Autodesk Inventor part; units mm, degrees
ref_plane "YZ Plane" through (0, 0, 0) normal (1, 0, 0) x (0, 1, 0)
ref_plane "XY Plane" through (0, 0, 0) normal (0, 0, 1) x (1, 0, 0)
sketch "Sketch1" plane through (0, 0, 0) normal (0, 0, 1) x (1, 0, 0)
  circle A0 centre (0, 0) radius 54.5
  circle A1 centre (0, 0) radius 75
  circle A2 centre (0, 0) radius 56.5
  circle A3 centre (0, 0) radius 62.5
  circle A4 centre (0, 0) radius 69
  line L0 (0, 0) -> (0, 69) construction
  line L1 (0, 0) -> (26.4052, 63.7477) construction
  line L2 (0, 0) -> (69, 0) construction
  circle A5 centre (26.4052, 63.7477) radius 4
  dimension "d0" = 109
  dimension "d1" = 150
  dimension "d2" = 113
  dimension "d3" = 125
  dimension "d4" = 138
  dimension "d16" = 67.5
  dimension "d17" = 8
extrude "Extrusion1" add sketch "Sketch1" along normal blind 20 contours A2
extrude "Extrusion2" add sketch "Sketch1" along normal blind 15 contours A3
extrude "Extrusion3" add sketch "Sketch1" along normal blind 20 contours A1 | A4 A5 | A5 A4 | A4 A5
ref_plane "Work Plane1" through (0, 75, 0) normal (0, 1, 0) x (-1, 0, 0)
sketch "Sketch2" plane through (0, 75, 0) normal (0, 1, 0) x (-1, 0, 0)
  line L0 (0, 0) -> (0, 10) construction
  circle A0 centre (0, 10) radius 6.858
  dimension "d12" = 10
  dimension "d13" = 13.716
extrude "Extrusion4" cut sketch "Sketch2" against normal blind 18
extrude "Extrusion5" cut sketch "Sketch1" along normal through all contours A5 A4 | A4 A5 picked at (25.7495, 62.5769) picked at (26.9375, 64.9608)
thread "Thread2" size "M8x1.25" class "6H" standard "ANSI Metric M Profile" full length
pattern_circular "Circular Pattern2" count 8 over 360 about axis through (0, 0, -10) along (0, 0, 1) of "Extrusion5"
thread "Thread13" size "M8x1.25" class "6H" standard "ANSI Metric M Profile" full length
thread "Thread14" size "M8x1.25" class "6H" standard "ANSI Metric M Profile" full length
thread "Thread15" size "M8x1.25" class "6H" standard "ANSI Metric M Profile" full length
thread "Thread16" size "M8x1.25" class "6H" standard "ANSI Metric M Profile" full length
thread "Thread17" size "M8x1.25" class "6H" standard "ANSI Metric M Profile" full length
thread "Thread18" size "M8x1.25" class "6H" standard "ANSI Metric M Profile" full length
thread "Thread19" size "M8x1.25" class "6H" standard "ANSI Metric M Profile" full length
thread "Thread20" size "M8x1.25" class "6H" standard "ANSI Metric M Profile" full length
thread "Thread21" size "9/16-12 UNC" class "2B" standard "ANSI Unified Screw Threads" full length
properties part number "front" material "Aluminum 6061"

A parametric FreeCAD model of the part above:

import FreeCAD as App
import Part
import Sketcher

V = App.Vector
Q = App.Units.Quantity

doc = App.newDocument("Part")
body = doc.addObject("PartDesign::Body", "Body")

# Sketch on XY plane
sketch1 = doc.addObject("Sketcher::SketchObject", "Sketch")
body.addObject(sketch1)
sketch1.AttachmentSupport = (doc.XY_Plane, [""])
sketch1.MapMode = "FlatFace"
sketch1.addGeometry(Part.Circle(V(0, 0, 0), V(0, 0, 1), 56), False)
sketch1.addGeometry(Part.Circle(V(0, 0, 0), V(0, 0, 1), 54), False)
sketch1.addConstraint(Sketcher.Constraint("Coincident", 0, 3, -1, 1))
sketch1.addConstraint(Sketcher.Constraint("Coincident", 1, 3, -1, 1))
sketch1.addConstraint(Sketcher.Constraint("Diameter", 0, Q("113 mm")))
sketch1.addConstraint(Sketcher.Constraint("Diameter", 1, Q("109 mm")))
pad1 = doc.addObject("PartDesign::Pad", "Pad")
body.addObject(pad1)
pad1.Profile = sketch1
pad1.Length = 20

# Sketch on XY plane
sketch2 = doc.addObject("Sketcher::SketchObject", "Sketch001")
body.addObject(sketch2)
sketch2.AttachmentSupport = (doc.XY_Plane, [""])
sketch2.MapMode = "FlatFace"
sketch2.addGeometry(Part.Circle(V(0, 0, 0), V(0, 0, 1), 62), False)
sketch2.addGeometry(Part.Circle(V(0, 0, 0), V(0, 0, 1), 56), False)
sketch2.addConstraint(Sketcher.Constraint("Coincident", 0, 3, -1, 1))
sketch2.addConstraint(Sketcher.Constraint("Coincident", 1, 3, -1, 1))
sketch2.addConstraint(Sketcher.Constraint("Diameter", 0, Q("125 mm")))
sketch2.addConstraint(Sketcher.Constraint("Diameter", 1, Q("113 mm")))
pad2 = doc.addObject("PartDesign::Pad", "Pad001")
body.addObject(pad2)
pad2.Profile = sketch2
pad2.Length = 15

# Sketch on XY plane
sketch3 = doc.addObject("Sketcher::SketchObject", "Sketch002")
body.addObject(sketch3)
sketch3.AttachmentSupport = (doc.XY_Plane, [""])
sketch3.MapMode = "FlatFace"
sketch3.addGeometry(Part.Circle(V(0, 0, 0), V(0, 0, 1), 75), False)
sketch3.addGeometry(Part.Circle(V(0, 0, 0), V(0, 0, 1), 62), False)
sketch3.addConstraint(Sketcher.Constraint("Coincident", 0, 3, -1, 1))
sketch3.addConstraint(Sketcher.Constraint("Coincident", 1, 3, -1, 1))
sketch3.addConstraint(Sketcher.Constraint("Diameter", 0, Q("150 mm")))
sketch3.addConstraint(Sketcher.Constraint("Diameter", 1, Q("125 mm")))
pad3 = doc.addObject("PartDesign::Pad", "Pad002")
body.addObject(pad3)
pad3.Profile = sketch3
pad3.Length = 20

# Sketch on XZ plane
sketch4 = doc.addObject("Sketcher::SketchObject", "Sketch003")
body.addObject(sketch4)
sketch4.AttachmentSupport = (doc.XZ_Plane, [""])
sketch4.MapMode = "FlatFace"
sketch4.AttachmentOffset = App.Placement(V(0, 0, -75), App.Rotation())
sketch4.addGeometry(Part.Circle(V(0, 10, 0), V(0, 0, 1), 7), False)
sketch4.addConstraint(Sketcher.Constraint("PointOnObject", 0, 3, -2))
sketch4.addConstraint(Sketcher.Constraint("Diameter", 0, Q("13.716 mm")))
sketch4.addConstraint(Sketcher.Constraint("DistanceY", -1, 1, 0, 3, Q("10 mm")))
pocket1 = doc.addObject("PartDesign::Pocket", "Pocket")
body.addObject(pocket1)
pocket1.Profile = sketch4
pocket1.Length = 18
pocket1.Reversed = True

# Sketch on XY plane
sketch5 = doc.addObject("Sketcher::SketchObject", "Sketch004")
body.addObject(sketch5)
sketch5.AttachmentSupport = (doc.XY_Plane, [""])
sketch5.MapMode = "FlatFace"
sketch5.addGeometry(Part.Circle(V(26.4, 63.7, 0), V(0, 0, 1), 4), False)
sketch5.addConstraint(Sketcher.Constraint("Diameter", 0, Q("8 mm")))
sketch5.addConstraint(Sketcher.Constraint("DistanceX", -1, 1, 0, 3, Q("26.4052 mm")))
sketch5.addConstraint(Sketcher.Constraint("DistanceY", -1, 1, 0, 3, Q("63.7477 mm")))
pocket2 = doc.addObject("PartDesign::Pocket", "Pocket001")
body.addObject(pocket2)
pocket2.Profile = sketch5
pocket2.Type = "ThroughAll"
pocket2.Reversed = True
doc.recompute()

polarpattern = doc.addObject("PartDesign::PolarPattern", "PolarPattern")
body.addObject(polarpattern)
polarpattern.Originals = [pocket2]
polarpattern.Axis = (doc.Z_Axis, [""])
polarpattern.Angle = 360
polarpattern.Occurrences = 8
body.Tip = polarpattern

doc.recompute()
